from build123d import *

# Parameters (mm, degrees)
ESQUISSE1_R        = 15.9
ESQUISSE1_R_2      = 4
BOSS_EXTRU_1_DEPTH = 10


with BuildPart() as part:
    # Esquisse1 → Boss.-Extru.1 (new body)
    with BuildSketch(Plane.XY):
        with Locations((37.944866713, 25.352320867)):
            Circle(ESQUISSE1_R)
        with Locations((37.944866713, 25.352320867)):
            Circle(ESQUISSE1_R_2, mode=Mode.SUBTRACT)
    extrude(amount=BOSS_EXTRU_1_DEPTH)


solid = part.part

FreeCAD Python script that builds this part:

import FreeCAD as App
import Part
import Sketcher

V = App.Vector

doc = App.newDocument("Part")
body = doc.addObject("PartDesign::Body", "Body")

# Sketch on XY plane
sketch1 = body.newObject("Sketcher::SketchObject", "Sketch")
sketch1.AttachmentSupport = (doc.getObject("XY_Plane"), [""])
sketch1.MapMode = "FlatFace"
sketch1.addGeometry(Part.Circle(V(37.9, 25.4, 0), V(0, 0, 1), 15.9), False)
sketch1.addGeometry(Part.Circle(V(37.9, 25.4, 0), V(0, 0, 1), 4), False)
sketch1.addConstraint(Sketcher.Constraint("Coincident", 1, 3, 0, 3))
sketch1.addConstraint(Sketcher.Constraint("Diameter", 1, 8.0))
sketch1.addConstraint(Sketcher.Constraint("Diameter", 0, 31.8))
sketch1.addConstraint(Sketcher.Constraint("DistanceY", -1, 1, 0, 3, 25.352321))
sketch1.addConstraint(Sketcher.Constraint("DistanceX", -1, 1, 0, 3, 37.944867))
pad1 = body.newObject("PartDesign::Pad", "Pad")
pad1.Profile = sketch1
pad1.Length = 10

doc.recompute()
